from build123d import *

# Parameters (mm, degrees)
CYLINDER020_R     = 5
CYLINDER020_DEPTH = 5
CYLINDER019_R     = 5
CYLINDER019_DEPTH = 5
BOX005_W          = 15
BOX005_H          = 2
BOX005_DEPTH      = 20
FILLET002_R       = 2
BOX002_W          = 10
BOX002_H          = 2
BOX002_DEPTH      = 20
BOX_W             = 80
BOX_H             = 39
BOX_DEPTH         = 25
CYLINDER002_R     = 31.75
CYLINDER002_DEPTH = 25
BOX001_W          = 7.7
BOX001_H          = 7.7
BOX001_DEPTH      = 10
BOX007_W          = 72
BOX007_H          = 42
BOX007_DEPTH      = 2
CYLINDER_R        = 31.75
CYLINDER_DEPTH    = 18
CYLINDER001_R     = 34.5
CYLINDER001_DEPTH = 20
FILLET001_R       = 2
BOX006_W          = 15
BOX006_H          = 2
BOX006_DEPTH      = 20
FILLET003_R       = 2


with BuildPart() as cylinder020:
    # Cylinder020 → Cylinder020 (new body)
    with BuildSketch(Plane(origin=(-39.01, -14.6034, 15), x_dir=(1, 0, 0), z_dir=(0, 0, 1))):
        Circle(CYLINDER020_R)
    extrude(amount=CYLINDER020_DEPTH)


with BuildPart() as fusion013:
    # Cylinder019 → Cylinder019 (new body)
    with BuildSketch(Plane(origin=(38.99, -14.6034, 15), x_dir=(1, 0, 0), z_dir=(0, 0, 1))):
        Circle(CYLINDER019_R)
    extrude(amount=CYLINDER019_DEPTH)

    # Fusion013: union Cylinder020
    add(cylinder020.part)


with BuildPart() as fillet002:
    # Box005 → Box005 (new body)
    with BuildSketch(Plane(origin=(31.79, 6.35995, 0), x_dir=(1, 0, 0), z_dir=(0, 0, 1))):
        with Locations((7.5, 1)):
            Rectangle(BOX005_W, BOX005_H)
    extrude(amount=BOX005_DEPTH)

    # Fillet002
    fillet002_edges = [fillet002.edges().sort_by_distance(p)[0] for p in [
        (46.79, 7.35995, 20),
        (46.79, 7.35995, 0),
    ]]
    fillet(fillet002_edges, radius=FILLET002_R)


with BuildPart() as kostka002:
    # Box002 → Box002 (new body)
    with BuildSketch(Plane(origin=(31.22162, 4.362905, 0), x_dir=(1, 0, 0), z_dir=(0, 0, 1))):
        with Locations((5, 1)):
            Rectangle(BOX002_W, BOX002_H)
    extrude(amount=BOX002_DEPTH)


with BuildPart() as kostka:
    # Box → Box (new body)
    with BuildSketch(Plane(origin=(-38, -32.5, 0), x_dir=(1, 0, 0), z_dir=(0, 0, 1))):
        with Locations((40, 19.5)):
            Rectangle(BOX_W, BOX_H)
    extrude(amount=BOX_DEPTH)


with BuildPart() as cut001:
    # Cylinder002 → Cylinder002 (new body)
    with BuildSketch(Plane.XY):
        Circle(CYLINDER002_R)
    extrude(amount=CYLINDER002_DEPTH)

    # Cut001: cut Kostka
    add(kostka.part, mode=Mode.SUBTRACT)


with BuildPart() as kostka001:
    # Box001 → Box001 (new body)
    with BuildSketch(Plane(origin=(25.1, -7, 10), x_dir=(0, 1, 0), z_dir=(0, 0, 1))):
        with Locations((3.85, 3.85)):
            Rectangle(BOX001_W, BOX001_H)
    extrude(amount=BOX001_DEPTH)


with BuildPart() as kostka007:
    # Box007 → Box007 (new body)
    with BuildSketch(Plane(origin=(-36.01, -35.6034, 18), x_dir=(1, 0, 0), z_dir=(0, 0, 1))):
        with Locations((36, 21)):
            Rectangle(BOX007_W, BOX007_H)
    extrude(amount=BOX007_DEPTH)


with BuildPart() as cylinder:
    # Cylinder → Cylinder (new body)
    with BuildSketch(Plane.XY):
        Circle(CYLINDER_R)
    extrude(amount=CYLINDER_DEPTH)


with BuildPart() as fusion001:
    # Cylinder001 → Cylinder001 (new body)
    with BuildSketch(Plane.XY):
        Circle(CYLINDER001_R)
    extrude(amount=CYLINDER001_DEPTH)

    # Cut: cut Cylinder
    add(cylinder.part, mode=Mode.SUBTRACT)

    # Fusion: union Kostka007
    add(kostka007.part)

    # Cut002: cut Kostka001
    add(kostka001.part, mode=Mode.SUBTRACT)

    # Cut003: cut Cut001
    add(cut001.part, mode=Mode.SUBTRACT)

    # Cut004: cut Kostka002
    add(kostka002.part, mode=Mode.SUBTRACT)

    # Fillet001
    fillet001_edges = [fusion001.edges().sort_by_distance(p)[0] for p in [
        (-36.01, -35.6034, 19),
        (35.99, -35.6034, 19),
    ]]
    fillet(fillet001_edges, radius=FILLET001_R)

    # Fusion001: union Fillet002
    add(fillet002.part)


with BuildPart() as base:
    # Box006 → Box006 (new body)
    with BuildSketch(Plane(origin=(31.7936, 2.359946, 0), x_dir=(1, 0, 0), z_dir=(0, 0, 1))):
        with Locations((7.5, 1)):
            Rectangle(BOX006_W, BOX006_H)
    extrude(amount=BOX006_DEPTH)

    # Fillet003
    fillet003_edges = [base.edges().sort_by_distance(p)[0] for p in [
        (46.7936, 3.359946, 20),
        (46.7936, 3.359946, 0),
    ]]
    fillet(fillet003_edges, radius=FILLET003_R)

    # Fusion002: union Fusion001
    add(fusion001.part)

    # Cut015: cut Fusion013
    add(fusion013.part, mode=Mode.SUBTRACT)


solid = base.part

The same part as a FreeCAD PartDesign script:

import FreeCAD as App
import Part
import Sketcher
from FreeCAD import Vector
Q = App.Units.Quantity


def edges_at(feature, points):
    """Names of the edges that pass closest to the given points."""
    edges = feature.Shape.Edges
    near = lambda p: min(range(len(edges)), key=lambda i: edges[i].distToShape(Part.Vertex(*p))[0])
    return sorted({f"Edge{near(p) + 1}" for p in points})


def add_polygon(sketch, points):
    """Adds a closed chain of lines whose ends are joined by coincident constraints."""
    first, n = sketch.GeometryCount, len(points)
    for a, b in zip(points, points[1:] + points[:1]):
        sketch.addGeometry(Part.LineSegment(App.Vector(*a, 0), App.Vector(*b, 0)), False)
    for i in range(n):
        sketch.addConstraint(Sketcher.Constraint("Coincident", first + i, 2, first + (i + 1) % n, 1))

doc = App.newDocument("Part")
body = doc.addObject("PartDesign::Body", "Body")

# Sketch on XY plane
sketch1 = body.newObject("Sketcher::SketchObject", "Sketch")
sketch1.AttachmentSupport = (doc.getObject("XY_Plane"), [""])
sketch1.MapMode = "FlatFace"
sketch1.AttachmentOffset = App.Placement(Vector(0, 0, 15), App.Rotation())
sketch1.addGeometry(Part.Circle(Vector(-39.01, -14.6034, 0), Vector(0, 0, 1), 5), False)
sketch1.addConstraint([
    Sketcher.Constraint("Diameter", 0, Q("10 mm")),
    Sketcher.Constraint("DistanceX", 0, 3, -1, 1, Q("39.01 mm")),
    Sketcher.Constraint("DistanceY", 0, 3, -1, 1, Q("14.6034 mm")),
])
pad1 = body.newObject("PartDesign::Pad", "Pad")
pad1.Profile = sketch1
pad1.Length = 5
body2 = doc.addObject("PartDesign::Body", "Body001")
body2.AllowCompound = True

# Sketch on XY plane
sketch2 = body2.newObject("Sketcher::SketchObject", "Sketch001")
sketch2.AttachmentSupport = (doc.getObject("XY_Plane001"), [""])
sketch2.MapMode = "FlatFace"
sketch2.AttachmentOffset = App.Placement(Vector(0, 0, 15), App.Rotation())
sketch2.addGeometry(Part.Circle(Vector(38.99, -14.6034, 0), Vector(0, 0, 1), 5), False)
sketch2.addConstraint([
    Sketcher.Constraint("Diameter", 0, Q("10 mm")),
    Sketcher.Constraint("DistanceX", -1, 1, 0, 3, Q("38.99 mm")),
    Sketcher.Constraint("DistanceY", 0, 3, -1, 1, Q("14.6034 mm")),
])
pad2 = body2.newObject("PartDesign::Pad", "Pad001")
pad2.Profile = sketch2
pad2.Length = 5
doc.recompute()

boolean = body2.newObject("PartDesign::Boolean", "Boolean")
boolean.Type = "Fuse"
boolean.addObjects([body])
body3 = doc.addObject("PartDesign::Body", "Body002")

# Sketch on XY plane
sketch3 = body3.newObject("Sketcher::SketchObject", "Sketch002")
sketch3.AttachmentSupport = (doc.getObject("XY_Plane002"), [""])
sketch3.MapMode = "FlatFace"
add_polygon(sketch3, [(31.79, 8.35995), (31.79, 6.35995), (46.79, 6.35995), (46.79, 8.35995)])  # lines 0-3
sketch3.addConstraint([
    Sketcher.Constraint("Vertical", 0),
    Sketcher.Constraint("Horizontal", 1),
    Sketcher.Constraint("Vertical", 2),
    Sketcher.Constraint("Horizontal", 3),
    Sketcher.Constraint("DistanceX", 1, 1, 1, 2, Q("15 mm")),
    Sketcher.Constraint("DistanceY", 0, 2, 0, 1, Q("2 mm")),
    Sketcher.Constraint("DistanceX", -1, 1, 0, 2, Q("31.79 mm")),
    Sketcher.Constraint("DistanceY", -1, 1, 0, 2, Q("6.35995 mm")),
])
pad3 = body3.newObject("PartDesign::Pad", "Pad002")
pad3.Profile = sketch3
pad3.Length = 20
doc.recompute()

fillet = body3.newObject("PartDesign::Fillet", "Fillet")
fillet.Base = (pad3, edges_at(pad3, [(46.79, 7.36, 20), (46.79, 7.36, 0)]))
fillet.Radius = 2
body4 = doc.addObject("PartDesign::Body", "Body003")

# Sketch on XY plane
sketch4 = body4.newObject("Sketcher::SketchObject", "Sketch003")
sketch4.AttachmentSupport = (doc.getObject("XY_Plane003"), [""])
sketch4.MapMode = "FlatFace"
add_polygon(sketch4, [(31.22162, 6.362905), (31.22162, 4.362905), (41.22162, 4.362905), (41.22162, 6.362905)])  # lines 0-3
sketch4.addConstraint([
    Sketcher.Constraint("Vertical", 0),
    Sketcher.Constraint("Horizontal", 1),
    Sketcher.Constraint("Vertical", 2),
    Sketcher.Constraint("Horizontal", 3),
    Sketcher.Constraint("DistanceX", 1, 1, 1, 2, Q("10 mm")),
    Sketcher.Constraint("DistanceY", 0, 2, 0, 1, Q("2 mm")),
    Sketcher.Constraint("DistanceX", -1, 1, 0, 2, Q("31.22162 mm")),
    Sketcher.Constraint("DistanceY", -1, 1, 0, 2, Q("4.362905 mm")),
])
pad4 = body4.newObject("PartDesign::Pad", "Pad003")
pad4.Profile = sketch4
pad4.Length = 20
body5 = doc.addObject("PartDesign::Body", "Body004")

# Sketch on XY plane
sketch5 = body5.newObject("Sketcher::SketchObject", "Sketch004")
sketch5.AttachmentSupport = (doc.getObject("XY_Plane004"), [""])
sketch5.MapMode = "FlatFace"
add_polygon(sketch5, [(-38, 6.5), (-38, -32.5), (42, -32.5), (42, 6.5)])  # lines 0-3
sketch5.addConstraint([
    Sketcher.Constraint("Vertical", 0),
    Sketcher.Constraint("Horizontal", 1),
    Sketcher.Constraint("Vertical", 2),
    Sketcher.Constraint("Horizontal", 3),
    Sketcher.Constraint("DistanceX", 1, 1, 1, 2, Q("80 mm")),
    Sketcher.Constraint("DistanceY", 0, 2, 0, 1, Q("39 mm")),
    Sketcher.Constraint("DistanceX", 0, 2, -1, 1, Q("38 mm")),
    Sketcher.Constraint("DistanceY", 0, 2, -1, 1, Q("32.5 mm")),
])
pad5 = body5.newObject("PartDesign::Pad", "Pad004")
pad5.Profile = sketch5
pad5.Length = 25
body6 = doc.addObject("PartDesign::Body", "Body005")

# Sketch on XY plane
sketch6 = body6.newObject("Sketcher::SketchObject", "Sketch005")
sketch6.AttachmentSupport = (doc.getObject("XY_Plane005"), [""])
sketch6.MapMode = "FlatFace"
sketch6.addGeometry(Part.Circle(Vector(0, 0, 0), Vector(0, 0, 1), 31.75), False)
sketch6.addConstraint([
    Sketcher.Constraint("Coincident", 0, 3, -1, 1),
    Sketcher.Constraint("Diameter", 0, Q("63.5 mm")),
])
pad6 = body6.newObject("PartDesign::Pad", "Pad005")
pad6.Profile = sketch6
pad6.Length = 25
doc.recompute()

boolean2 = body6.newObject("PartDesign::Boolean", "Boolean001")
boolean2.Type = "Cut"
boolean2.addObjects([body5])
body7 = doc.addObject("PartDesign::Body", "Body006")

# Sketch on XY plane
sketch7 = body7.newObject("Sketcher::SketchObject", "Sketch006")
sketch7.AttachmentSupport = (doc.getObject("XY_Plane006"), [""])
sketch7.MapMode = "FlatFace"
sketch7.AttachmentOffset = App.Placement(Vector(0, 0, 10), App.Rotation())
add_polygon(sketch7, [(17.4, -7), (25.1, -7), (25.1, 0.7), (17.4, 0.7)])  # lines 0-3
sketch7.addConstraint([
    Sketcher.Constraint("Horizontal", 0),
    Sketcher.Constraint("Vertical", 1),
    Sketcher.Constraint("Horizontal", 2),
    Sketcher.Constraint("Vertical", 3),
    Sketcher.Constraint("Equal", 2, 1),
    Sketcher.Constraint("DistanceX", 0, 1, 0, 2, Q("7.7 mm")),
    Sketcher.Constraint("DistanceY", 0, 2, -1, 1, Q("7 mm")),
    Sketcher.Constraint("DistanceX", -1, 1, 0, 2, Q("25.1 mm")),
])
pad7 = body7.newObject("PartDesign::Pad", "Pad006")
pad7.Profile = sketch7
pad7.Length = 10
body8 = doc.addObject("PartDesign::Body", "Body007")

# Sketch on XY plane
sketch8 = body8.newObject("Sketcher::SketchObject", "Sketch007")
sketch8.AttachmentSupport = (doc.getObject("XY_Plane007"), [""])
sketch8.MapMode = "FlatFace"
sketch8.AttachmentOffset = App.Placement(Vector(0, 0, 18), App.Rotation())
add_polygon(sketch8, [(-36.01, 6.3966), (-36.01, -35.6034), (35.99, -35.6034), (35.99, 6.3966)])  # lines 0-3
sketch8.addConstraint([
    Sketcher.Constraint("Vertical", 0),
    Sketcher.Constraint("Horizontal", 1),
    Sketcher.Constraint("Vertical", 2),
    Sketcher.Constraint("Horizontal", 3),
    Sketcher.Constraint("DistanceX", 1, 1, 1, 2, Q("72 mm")),
    Sketcher.Constraint("DistanceY", 0, 2, 0, 1, Q("42 mm")),
    Sketcher.Constraint("DistanceX", 0, 2, -1, 1, Q("36.01 mm")),
    Sketcher.Constraint("DistanceY", 0, 2, -1, 1, Q("35.6034 mm")),
])
pad8 = body8.newObject("PartDesign::Pad", "Pad007")
pad8.Profile = sketch8
pad8.Length = 2
body9 = doc.addObject("PartDesign::Body", "Body008")

# Sketch on XY plane
sketch9 = body9.newObject("Sketcher::SketchObject", "Sketch008")
sketch9.AttachmentSupport = (doc.getObject("XY_Plane008"), [""])
sketch9.MapMode = "FlatFace"
sketch9.addGeometry(Part.Circle(Vector(0, 0, 0), Vector(0, 0, 1), 31.75), False)
sketch9.addConstraint([
    Sketcher.Constraint("Coincident", 0, 3, -1, 1),
    Sketcher.Constraint("Diameter", 0, Q("63.5 mm")),
])
pad9 = body9.newObject("PartDesign::Pad", "Pad008")
pad9.Profile = sketch9
pad9.Length = 18
body10 = doc.addObject("PartDesign::Body", "Body009")

# Sketch on XY plane
sketch10 = body10.newObject("Sketcher::SketchObject", "Sketch009")
sketch10.AttachmentSupport = (doc.getObject("XY_Plane009"), [""])
sketch10.MapMode = "FlatFace"
sketch10.addGeometry(Part.Circle(Vector(0, 0, 0), Vector(0, 0, 1), 34.5), False)
sketch10.addConstraint([
    Sketcher.Constraint("Coincident", 0, 3, -1, 1),
    Sketcher.Constraint("Diameter", 0, Q("69 mm")),
])
pad10 = body10.newObject("PartDesign::Pad", "Pad009")
pad10.Profile = sketch10
pad10.Length = 20
doc.recompute()

boolean3 = body10.newObject("PartDesign::Boolean", "Boolean002")
boolean3.Type = "Cut"
boolean3.addObjects([body9])
doc.recompute()

boolean4 = body10.newObject("PartDesign::Boolean", "Boolean003")
boolean4.Type = "Fuse"
boolean4.addObjects([body8])
doc.recompute()

boolean5 = body10.newObject("PartDesign::Boolean", "Boolean004")
boolean5.Type = "Cut"
boolean5.addObjects([body7])
doc.recompute()

boolean6 = body10.newObject("PartDesign::Boolean", "Boolean005")
boolean6.Type = "Cut"
boolean6.addObjects([body6])
doc.recompute()

boolean7 = body10.newObject("PartDesign::Boolean", "Boolean006")
boolean7.Type = "Cut"
boolean7.addObjects([body4])
doc.recompute()

fillet2 = body10.newObject("PartDesign::Fillet", "Fillet001")
fillet2.Base = (boolean7, edges_at(boolean7, [(-36.01, -35.603, 19), (35.99, -35.603, 19)]))
fillet2.Radius = 2
doc.recompute()

boolean8 = body10.newObject("PartDesign::Boolean", "Boolean007")
boolean8.Type = "Fuse"
boolean8.addObjects([body3])
body11 = doc.addObject("PartDesign::Body", "Body010")

# Sketch on XY plane
sketch11 = body11.newObject("Sketcher::SketchObject", "Sketch010")
sketch11.AttachmentSupport = (doc.getObject("XY_Plane010"), [""])
sketch11.MapMode = "FlatFace"
add_polygon(sketch11, [(31.7936, 4.359946), (31.7936, 2.359946), (46.7936, 2.359946), (46.7936, 4.359946)])  # lines 0-3
sketch11.addConstraint([
    Sketcher.Constraint("Vertical", 0),
    Sketcher.Constraint("Horizontal", 1),
    Sketcher.Constraint("Vertical", 2),
    Sketcher.Constraint("Horizontal", 3),
    Sketcher.Constraint("DistanceX", 1, 1, 1, 2, Q("15 mm")),
    Sketcher.Constraint("DistanceY", 0, 2, 0, 1, Q("2 mm")),
    Sketcher.Constraint("DistanceX", -1, 1, 0, 2, Q("31.7936 mm")),
    Sketcher.Constraint("DistanceY", -1, 1, 0, 2, Q("2.359946 mm")),
])
pad11 = body11.newObject("PartDesign::Pad", "Pad010")
pad11.Profile = sketch11
pad11.Length = 20
doc.recompute()

fillet3 = body11.newObject("PartDesign::Fillet", "Fillet002")
fillet3.Base = (pad11, edges_at(pad11, [(46.794, 3.36, 20), (46.794, 3.36, 0)]))
fillet3.Radius = 2
doc.recompute()

boolean9 = body11.newObject("PartDesign::Boolean", "Boolean008")
boolean9.Type = "Fuse"
boolean9.addObjects([body10])
doc.recompute()

boolean10 = body11.newObject("PartDesign::Boolean", "Boolean009")
boolean10.Type = "Cut"
boolean10.addObjects([body2])

doc.recompute()
